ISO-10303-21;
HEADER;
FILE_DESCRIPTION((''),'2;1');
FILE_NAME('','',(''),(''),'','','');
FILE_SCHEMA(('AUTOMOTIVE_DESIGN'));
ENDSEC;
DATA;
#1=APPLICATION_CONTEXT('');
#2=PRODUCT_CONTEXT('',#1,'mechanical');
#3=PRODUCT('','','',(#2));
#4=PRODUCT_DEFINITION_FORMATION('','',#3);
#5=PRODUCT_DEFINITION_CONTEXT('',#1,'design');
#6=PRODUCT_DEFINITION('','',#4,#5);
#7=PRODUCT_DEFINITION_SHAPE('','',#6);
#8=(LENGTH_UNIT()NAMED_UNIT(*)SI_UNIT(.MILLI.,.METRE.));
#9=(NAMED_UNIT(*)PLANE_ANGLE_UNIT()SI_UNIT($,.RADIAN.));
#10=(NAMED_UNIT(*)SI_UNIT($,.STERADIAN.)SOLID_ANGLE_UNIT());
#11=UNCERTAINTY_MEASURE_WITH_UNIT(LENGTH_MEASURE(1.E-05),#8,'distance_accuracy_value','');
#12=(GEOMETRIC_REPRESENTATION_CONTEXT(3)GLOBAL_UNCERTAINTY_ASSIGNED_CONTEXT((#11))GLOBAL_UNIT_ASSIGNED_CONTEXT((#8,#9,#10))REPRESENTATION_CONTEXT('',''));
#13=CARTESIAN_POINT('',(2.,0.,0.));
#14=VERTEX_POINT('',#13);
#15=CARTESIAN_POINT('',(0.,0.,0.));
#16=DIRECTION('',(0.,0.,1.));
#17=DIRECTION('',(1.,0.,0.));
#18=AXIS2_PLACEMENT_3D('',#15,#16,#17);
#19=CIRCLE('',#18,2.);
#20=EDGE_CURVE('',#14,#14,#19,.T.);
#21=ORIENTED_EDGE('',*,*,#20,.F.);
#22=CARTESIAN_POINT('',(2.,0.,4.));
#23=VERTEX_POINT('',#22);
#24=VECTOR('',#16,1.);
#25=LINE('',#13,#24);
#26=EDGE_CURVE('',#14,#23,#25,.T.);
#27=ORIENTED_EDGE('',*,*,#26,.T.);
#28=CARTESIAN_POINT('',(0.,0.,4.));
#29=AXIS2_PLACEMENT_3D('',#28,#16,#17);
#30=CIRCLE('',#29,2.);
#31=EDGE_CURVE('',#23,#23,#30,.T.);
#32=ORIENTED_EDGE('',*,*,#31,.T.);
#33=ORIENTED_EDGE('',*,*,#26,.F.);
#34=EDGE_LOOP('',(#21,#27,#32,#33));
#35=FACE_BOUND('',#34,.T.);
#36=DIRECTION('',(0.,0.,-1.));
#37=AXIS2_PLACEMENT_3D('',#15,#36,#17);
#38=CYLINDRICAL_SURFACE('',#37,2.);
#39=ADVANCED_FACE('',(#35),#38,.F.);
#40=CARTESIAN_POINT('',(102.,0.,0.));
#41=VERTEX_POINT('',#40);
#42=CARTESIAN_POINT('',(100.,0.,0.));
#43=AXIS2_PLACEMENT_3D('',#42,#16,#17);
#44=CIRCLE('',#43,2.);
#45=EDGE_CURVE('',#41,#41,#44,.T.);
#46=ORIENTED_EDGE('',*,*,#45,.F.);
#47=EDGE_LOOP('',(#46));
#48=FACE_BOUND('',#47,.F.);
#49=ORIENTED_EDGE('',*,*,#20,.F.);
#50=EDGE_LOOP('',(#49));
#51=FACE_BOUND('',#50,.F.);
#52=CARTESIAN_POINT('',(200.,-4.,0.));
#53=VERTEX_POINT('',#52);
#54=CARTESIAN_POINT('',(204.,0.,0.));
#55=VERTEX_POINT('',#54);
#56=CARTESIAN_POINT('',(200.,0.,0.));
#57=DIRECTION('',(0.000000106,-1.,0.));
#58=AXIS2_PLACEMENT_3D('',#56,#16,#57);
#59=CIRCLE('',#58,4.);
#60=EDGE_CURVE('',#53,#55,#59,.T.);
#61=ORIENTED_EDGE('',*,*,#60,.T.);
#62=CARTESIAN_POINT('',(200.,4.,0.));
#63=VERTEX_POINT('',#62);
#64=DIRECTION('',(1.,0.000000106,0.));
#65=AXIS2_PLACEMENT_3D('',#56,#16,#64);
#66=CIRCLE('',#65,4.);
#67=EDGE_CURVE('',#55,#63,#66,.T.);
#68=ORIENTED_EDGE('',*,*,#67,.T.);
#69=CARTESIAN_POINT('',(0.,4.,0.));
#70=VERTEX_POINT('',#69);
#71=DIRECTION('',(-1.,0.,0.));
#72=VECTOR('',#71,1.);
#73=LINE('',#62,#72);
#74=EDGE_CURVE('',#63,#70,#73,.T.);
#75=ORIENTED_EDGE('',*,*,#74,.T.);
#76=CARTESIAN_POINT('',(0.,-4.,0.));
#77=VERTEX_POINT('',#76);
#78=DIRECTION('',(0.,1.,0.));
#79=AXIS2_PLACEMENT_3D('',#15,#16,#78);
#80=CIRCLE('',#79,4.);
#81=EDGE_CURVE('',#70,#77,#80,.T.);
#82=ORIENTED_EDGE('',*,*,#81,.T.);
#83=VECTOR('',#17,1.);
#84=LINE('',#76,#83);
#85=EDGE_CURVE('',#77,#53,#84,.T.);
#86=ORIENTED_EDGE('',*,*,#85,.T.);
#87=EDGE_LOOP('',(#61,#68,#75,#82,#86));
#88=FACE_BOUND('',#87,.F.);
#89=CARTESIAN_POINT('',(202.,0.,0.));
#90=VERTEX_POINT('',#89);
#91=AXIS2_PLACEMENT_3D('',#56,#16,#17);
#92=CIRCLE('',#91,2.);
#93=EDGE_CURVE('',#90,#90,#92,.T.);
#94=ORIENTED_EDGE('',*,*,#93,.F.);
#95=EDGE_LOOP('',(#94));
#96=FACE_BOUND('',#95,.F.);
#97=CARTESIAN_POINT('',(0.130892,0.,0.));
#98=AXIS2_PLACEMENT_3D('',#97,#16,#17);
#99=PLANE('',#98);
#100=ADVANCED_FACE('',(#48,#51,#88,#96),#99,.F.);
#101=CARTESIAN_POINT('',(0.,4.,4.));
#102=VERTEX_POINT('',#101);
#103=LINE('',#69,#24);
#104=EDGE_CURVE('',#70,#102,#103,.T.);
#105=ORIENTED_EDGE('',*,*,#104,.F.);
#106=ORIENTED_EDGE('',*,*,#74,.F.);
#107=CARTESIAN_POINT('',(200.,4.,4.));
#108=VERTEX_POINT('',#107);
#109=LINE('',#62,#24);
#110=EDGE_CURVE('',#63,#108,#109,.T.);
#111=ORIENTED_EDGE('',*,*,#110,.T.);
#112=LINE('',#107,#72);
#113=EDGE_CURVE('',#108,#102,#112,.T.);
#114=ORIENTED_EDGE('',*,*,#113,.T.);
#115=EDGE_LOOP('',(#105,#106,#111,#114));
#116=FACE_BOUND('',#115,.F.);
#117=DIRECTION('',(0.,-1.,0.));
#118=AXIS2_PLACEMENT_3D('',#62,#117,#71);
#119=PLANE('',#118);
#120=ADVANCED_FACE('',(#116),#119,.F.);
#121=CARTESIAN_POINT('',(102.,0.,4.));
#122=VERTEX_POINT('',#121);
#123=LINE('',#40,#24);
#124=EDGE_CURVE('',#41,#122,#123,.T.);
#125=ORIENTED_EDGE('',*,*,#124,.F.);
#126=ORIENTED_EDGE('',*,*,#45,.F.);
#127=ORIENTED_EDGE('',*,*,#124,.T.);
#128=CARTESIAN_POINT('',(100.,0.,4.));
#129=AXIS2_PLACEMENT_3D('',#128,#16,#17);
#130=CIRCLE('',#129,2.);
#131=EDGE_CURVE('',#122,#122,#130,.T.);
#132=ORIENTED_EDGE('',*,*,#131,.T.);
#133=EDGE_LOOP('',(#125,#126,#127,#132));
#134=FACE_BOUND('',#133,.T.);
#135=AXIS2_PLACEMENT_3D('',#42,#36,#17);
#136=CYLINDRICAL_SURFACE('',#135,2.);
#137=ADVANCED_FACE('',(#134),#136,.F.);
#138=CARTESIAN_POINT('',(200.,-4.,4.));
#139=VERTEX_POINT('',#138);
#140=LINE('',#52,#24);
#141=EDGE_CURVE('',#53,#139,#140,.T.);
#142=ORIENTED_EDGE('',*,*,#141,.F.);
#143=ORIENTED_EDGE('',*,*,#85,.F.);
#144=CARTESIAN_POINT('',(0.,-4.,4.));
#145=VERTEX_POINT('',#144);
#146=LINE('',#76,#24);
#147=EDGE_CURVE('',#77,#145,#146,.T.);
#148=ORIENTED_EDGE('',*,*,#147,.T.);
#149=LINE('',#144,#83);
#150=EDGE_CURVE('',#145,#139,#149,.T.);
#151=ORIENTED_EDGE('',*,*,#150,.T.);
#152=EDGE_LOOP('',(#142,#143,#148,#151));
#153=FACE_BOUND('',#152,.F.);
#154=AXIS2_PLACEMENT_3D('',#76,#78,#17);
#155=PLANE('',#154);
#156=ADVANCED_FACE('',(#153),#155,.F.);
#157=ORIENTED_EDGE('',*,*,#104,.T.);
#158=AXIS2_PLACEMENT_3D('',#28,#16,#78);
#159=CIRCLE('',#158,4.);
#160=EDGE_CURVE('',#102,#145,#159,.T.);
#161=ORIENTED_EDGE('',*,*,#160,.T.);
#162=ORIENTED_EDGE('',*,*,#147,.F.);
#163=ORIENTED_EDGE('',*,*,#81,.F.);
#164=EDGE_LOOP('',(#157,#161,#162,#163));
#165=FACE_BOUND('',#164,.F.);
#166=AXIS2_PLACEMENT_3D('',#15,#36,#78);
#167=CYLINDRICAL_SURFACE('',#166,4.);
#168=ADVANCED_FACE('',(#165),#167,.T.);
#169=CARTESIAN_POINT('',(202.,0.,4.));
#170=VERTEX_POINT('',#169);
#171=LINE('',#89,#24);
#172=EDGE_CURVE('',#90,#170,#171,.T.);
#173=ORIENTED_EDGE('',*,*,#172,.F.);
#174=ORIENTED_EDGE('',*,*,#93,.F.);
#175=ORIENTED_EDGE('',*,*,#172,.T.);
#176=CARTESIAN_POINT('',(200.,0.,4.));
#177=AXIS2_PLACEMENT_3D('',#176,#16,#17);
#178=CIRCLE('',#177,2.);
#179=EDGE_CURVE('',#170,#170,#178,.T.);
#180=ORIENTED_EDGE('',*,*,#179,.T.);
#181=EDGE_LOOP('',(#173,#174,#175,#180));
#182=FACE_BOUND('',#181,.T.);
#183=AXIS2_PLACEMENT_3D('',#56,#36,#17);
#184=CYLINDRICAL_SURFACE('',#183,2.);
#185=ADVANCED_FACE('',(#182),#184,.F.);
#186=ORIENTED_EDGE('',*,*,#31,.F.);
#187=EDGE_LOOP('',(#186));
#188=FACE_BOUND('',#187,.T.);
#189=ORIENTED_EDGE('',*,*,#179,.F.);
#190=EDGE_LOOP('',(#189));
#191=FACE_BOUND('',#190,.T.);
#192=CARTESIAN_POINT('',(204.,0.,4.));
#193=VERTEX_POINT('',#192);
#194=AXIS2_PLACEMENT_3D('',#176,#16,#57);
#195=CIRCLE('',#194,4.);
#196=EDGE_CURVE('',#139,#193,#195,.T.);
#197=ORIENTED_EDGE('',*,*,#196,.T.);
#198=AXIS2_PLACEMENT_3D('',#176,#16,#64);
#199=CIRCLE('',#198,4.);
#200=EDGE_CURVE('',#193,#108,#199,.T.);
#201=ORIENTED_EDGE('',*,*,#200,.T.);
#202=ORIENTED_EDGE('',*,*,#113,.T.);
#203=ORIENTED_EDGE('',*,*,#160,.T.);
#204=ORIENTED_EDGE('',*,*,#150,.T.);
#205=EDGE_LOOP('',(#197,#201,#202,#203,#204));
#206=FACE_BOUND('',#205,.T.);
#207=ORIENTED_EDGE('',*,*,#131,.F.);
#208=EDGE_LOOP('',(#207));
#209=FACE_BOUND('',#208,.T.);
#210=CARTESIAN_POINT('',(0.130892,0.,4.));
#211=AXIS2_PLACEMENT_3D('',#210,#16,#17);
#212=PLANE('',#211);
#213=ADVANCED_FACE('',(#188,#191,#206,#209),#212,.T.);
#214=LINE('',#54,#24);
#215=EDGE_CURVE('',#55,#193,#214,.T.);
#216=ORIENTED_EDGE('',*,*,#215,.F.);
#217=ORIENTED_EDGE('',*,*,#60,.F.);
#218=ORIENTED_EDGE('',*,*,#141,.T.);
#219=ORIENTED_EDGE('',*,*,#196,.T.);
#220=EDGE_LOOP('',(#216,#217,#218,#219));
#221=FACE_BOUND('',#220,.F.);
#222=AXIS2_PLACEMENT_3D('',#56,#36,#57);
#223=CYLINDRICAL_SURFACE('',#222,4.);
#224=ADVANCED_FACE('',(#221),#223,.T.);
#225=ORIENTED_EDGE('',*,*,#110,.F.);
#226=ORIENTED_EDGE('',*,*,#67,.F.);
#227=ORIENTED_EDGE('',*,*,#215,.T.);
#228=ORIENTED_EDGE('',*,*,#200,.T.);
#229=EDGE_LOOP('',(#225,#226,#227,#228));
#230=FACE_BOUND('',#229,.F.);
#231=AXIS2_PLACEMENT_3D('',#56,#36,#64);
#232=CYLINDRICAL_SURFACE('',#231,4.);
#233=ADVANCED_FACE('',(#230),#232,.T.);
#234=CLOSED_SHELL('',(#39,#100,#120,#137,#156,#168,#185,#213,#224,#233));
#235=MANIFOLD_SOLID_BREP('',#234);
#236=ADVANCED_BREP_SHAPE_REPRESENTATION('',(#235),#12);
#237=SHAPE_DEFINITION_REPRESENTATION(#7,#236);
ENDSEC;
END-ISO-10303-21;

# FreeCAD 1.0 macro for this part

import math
import FreeCAD as App
import Part
import Sketcher

doc = App.newDocument("Part")
params = doc.addObject("Spreadsheet::Sheet", "Params")
for row, (alias, value) in enumerate([
    ("sketch1_diameter", "4 mm"),
    ("sketch1_radius", "4 mm"),
    ("sketch1_width", "200 mm"),
    ("pad1_length", "4 mm"),
], start=1):
    params.set(f"A{row}", alias)
    params.set(f"B{row}", "=" + value)
    params.setAlias(f"B{row}", alias)

body = doc.addObject("PartDesign::Body", "Body")

# Sketch on XY plane
sketch1 = body.newObject("Sketcher::SketchObject", "Sketch")
sketch1.AttachmentSupport = (doc.getObject("XY_Plane"), [""])
sketch1.MapMode = "FlatFace"
sketch1.addGeometry(Part.ArcOfCircle(Part.Circle(App.Vector(0, 0, 0), App.Vector(0, 0, 1), 4), math.radians(90), math.radians(270)), False)
sketch1.addGeometry(Part.LineSegment(App.Vector(0, -4, 0), App.Vector(200, -4, 0)), False)
sketch1.addGeometry(Part.ArcOfCircle(Part.Circle(App.Vector(200, 0, 0), App.Vector(0, 0, 1), 4), math.radians(-90), math.radians(0)), False)
sketch1.addGeometry(Part.ArcOfCircle(Part.Circle(App.Vector(200, 0, 0), App.Vector(0, 0, 1), 4), math.radians(0), math.radians(90)), False)
sketch1.addGeometry(Part.LineSegment(App.Vector(200, 4, 0), App.Vector(0, 4, 0)), False)
sketch1.addGeometry(Part.Circle(App.Vector(0, 0, 0), App.Vector(0, 0, 1), 2), False)
sketch1.addGeometry(Part.Circle(App.Vector(100, 0, 0), App.Vector(0, 0, 1), 2), False)
sketch1.addGeometry(Part.Circle(App.Vector(200, 0, 0), App.Vector(0, 0, 1), 2), False)
sketch1.addConstraint(Sketcher.Constraint("Tangent", 0, 2, 1, 1))
sketch1.addConstraint(Sketcher.Constraint("Tangent", 1, 2, 2, 1))
sketch1.addConstraint(Sketcher.Constraint("Tangent", 2, 2, 3, 1))
sketch1.addConstraint(Sketcher.Constraint("Tangent", 3, 2, 4, 1))
sketch1.addConstraint(Sketcher.Constraint("Tangent", 4, 2, 0, 1))
sketch1.addConstraint(Sketcher.Constraint("Horizontal", 1))
sketch1.addConstraint(Sketcher.Constraint("Horizontal", 4))
sketch1.addConstraint(Sketcher.Constraint("Coincident", 0, 3, -1, 1))
sketch1.addConstraint(Sketcher.Constraint("Coincident", 5, 3, -1, 1))
sketch1.addConstraint(Sketcher.Constraint("Coincident", 7, 3, 2, 3))
sketch1.addConstraint(Sketcher.Constraint("Equal", 0, 2))
sketch1.addConstraint(Sketcher.Constraint("Equal", 5, 6))
sketch1.addConstraint(Sketcher.Constraint("Equal", 6, 7))
sketch1.addConstraint(Sketcher.Constraint("PointOnObject", 6, 3, -1))
sketch1.addConstraint(Sketcher.Constraint("PointOnObject", 2, 2, -1))
sketch1.addConstraint(Sketcher.Constraint("Diameter", 5, 4.0))
sketch1.addConstraint(Sketcher.Constraint("Radius", 0, 4.0))
sketch1.addConstraint(Sketcher.Constraint("DistanceX", 1, 1, 1, 2, 200.0))
sketch1.addConstraint(Sketcher.Constraint("DistanceX", -1, 1, 6, 3, 100.0))
sketch1.setExpression("Constraints[15]", "Params.sketch1_diameter")
sketch1.setExpression("Constraints[16]", "Params.sketch1_radius")
sketch1.setExpression("Constraints[17]", "Params.sketch1_width")
pad1 = body.newObject("PartDesign::Pad", "Pad")
pad1.Profile = sketch1
pad1.setExpression("Length", "Params.pad1_length")

doc.recompute()
